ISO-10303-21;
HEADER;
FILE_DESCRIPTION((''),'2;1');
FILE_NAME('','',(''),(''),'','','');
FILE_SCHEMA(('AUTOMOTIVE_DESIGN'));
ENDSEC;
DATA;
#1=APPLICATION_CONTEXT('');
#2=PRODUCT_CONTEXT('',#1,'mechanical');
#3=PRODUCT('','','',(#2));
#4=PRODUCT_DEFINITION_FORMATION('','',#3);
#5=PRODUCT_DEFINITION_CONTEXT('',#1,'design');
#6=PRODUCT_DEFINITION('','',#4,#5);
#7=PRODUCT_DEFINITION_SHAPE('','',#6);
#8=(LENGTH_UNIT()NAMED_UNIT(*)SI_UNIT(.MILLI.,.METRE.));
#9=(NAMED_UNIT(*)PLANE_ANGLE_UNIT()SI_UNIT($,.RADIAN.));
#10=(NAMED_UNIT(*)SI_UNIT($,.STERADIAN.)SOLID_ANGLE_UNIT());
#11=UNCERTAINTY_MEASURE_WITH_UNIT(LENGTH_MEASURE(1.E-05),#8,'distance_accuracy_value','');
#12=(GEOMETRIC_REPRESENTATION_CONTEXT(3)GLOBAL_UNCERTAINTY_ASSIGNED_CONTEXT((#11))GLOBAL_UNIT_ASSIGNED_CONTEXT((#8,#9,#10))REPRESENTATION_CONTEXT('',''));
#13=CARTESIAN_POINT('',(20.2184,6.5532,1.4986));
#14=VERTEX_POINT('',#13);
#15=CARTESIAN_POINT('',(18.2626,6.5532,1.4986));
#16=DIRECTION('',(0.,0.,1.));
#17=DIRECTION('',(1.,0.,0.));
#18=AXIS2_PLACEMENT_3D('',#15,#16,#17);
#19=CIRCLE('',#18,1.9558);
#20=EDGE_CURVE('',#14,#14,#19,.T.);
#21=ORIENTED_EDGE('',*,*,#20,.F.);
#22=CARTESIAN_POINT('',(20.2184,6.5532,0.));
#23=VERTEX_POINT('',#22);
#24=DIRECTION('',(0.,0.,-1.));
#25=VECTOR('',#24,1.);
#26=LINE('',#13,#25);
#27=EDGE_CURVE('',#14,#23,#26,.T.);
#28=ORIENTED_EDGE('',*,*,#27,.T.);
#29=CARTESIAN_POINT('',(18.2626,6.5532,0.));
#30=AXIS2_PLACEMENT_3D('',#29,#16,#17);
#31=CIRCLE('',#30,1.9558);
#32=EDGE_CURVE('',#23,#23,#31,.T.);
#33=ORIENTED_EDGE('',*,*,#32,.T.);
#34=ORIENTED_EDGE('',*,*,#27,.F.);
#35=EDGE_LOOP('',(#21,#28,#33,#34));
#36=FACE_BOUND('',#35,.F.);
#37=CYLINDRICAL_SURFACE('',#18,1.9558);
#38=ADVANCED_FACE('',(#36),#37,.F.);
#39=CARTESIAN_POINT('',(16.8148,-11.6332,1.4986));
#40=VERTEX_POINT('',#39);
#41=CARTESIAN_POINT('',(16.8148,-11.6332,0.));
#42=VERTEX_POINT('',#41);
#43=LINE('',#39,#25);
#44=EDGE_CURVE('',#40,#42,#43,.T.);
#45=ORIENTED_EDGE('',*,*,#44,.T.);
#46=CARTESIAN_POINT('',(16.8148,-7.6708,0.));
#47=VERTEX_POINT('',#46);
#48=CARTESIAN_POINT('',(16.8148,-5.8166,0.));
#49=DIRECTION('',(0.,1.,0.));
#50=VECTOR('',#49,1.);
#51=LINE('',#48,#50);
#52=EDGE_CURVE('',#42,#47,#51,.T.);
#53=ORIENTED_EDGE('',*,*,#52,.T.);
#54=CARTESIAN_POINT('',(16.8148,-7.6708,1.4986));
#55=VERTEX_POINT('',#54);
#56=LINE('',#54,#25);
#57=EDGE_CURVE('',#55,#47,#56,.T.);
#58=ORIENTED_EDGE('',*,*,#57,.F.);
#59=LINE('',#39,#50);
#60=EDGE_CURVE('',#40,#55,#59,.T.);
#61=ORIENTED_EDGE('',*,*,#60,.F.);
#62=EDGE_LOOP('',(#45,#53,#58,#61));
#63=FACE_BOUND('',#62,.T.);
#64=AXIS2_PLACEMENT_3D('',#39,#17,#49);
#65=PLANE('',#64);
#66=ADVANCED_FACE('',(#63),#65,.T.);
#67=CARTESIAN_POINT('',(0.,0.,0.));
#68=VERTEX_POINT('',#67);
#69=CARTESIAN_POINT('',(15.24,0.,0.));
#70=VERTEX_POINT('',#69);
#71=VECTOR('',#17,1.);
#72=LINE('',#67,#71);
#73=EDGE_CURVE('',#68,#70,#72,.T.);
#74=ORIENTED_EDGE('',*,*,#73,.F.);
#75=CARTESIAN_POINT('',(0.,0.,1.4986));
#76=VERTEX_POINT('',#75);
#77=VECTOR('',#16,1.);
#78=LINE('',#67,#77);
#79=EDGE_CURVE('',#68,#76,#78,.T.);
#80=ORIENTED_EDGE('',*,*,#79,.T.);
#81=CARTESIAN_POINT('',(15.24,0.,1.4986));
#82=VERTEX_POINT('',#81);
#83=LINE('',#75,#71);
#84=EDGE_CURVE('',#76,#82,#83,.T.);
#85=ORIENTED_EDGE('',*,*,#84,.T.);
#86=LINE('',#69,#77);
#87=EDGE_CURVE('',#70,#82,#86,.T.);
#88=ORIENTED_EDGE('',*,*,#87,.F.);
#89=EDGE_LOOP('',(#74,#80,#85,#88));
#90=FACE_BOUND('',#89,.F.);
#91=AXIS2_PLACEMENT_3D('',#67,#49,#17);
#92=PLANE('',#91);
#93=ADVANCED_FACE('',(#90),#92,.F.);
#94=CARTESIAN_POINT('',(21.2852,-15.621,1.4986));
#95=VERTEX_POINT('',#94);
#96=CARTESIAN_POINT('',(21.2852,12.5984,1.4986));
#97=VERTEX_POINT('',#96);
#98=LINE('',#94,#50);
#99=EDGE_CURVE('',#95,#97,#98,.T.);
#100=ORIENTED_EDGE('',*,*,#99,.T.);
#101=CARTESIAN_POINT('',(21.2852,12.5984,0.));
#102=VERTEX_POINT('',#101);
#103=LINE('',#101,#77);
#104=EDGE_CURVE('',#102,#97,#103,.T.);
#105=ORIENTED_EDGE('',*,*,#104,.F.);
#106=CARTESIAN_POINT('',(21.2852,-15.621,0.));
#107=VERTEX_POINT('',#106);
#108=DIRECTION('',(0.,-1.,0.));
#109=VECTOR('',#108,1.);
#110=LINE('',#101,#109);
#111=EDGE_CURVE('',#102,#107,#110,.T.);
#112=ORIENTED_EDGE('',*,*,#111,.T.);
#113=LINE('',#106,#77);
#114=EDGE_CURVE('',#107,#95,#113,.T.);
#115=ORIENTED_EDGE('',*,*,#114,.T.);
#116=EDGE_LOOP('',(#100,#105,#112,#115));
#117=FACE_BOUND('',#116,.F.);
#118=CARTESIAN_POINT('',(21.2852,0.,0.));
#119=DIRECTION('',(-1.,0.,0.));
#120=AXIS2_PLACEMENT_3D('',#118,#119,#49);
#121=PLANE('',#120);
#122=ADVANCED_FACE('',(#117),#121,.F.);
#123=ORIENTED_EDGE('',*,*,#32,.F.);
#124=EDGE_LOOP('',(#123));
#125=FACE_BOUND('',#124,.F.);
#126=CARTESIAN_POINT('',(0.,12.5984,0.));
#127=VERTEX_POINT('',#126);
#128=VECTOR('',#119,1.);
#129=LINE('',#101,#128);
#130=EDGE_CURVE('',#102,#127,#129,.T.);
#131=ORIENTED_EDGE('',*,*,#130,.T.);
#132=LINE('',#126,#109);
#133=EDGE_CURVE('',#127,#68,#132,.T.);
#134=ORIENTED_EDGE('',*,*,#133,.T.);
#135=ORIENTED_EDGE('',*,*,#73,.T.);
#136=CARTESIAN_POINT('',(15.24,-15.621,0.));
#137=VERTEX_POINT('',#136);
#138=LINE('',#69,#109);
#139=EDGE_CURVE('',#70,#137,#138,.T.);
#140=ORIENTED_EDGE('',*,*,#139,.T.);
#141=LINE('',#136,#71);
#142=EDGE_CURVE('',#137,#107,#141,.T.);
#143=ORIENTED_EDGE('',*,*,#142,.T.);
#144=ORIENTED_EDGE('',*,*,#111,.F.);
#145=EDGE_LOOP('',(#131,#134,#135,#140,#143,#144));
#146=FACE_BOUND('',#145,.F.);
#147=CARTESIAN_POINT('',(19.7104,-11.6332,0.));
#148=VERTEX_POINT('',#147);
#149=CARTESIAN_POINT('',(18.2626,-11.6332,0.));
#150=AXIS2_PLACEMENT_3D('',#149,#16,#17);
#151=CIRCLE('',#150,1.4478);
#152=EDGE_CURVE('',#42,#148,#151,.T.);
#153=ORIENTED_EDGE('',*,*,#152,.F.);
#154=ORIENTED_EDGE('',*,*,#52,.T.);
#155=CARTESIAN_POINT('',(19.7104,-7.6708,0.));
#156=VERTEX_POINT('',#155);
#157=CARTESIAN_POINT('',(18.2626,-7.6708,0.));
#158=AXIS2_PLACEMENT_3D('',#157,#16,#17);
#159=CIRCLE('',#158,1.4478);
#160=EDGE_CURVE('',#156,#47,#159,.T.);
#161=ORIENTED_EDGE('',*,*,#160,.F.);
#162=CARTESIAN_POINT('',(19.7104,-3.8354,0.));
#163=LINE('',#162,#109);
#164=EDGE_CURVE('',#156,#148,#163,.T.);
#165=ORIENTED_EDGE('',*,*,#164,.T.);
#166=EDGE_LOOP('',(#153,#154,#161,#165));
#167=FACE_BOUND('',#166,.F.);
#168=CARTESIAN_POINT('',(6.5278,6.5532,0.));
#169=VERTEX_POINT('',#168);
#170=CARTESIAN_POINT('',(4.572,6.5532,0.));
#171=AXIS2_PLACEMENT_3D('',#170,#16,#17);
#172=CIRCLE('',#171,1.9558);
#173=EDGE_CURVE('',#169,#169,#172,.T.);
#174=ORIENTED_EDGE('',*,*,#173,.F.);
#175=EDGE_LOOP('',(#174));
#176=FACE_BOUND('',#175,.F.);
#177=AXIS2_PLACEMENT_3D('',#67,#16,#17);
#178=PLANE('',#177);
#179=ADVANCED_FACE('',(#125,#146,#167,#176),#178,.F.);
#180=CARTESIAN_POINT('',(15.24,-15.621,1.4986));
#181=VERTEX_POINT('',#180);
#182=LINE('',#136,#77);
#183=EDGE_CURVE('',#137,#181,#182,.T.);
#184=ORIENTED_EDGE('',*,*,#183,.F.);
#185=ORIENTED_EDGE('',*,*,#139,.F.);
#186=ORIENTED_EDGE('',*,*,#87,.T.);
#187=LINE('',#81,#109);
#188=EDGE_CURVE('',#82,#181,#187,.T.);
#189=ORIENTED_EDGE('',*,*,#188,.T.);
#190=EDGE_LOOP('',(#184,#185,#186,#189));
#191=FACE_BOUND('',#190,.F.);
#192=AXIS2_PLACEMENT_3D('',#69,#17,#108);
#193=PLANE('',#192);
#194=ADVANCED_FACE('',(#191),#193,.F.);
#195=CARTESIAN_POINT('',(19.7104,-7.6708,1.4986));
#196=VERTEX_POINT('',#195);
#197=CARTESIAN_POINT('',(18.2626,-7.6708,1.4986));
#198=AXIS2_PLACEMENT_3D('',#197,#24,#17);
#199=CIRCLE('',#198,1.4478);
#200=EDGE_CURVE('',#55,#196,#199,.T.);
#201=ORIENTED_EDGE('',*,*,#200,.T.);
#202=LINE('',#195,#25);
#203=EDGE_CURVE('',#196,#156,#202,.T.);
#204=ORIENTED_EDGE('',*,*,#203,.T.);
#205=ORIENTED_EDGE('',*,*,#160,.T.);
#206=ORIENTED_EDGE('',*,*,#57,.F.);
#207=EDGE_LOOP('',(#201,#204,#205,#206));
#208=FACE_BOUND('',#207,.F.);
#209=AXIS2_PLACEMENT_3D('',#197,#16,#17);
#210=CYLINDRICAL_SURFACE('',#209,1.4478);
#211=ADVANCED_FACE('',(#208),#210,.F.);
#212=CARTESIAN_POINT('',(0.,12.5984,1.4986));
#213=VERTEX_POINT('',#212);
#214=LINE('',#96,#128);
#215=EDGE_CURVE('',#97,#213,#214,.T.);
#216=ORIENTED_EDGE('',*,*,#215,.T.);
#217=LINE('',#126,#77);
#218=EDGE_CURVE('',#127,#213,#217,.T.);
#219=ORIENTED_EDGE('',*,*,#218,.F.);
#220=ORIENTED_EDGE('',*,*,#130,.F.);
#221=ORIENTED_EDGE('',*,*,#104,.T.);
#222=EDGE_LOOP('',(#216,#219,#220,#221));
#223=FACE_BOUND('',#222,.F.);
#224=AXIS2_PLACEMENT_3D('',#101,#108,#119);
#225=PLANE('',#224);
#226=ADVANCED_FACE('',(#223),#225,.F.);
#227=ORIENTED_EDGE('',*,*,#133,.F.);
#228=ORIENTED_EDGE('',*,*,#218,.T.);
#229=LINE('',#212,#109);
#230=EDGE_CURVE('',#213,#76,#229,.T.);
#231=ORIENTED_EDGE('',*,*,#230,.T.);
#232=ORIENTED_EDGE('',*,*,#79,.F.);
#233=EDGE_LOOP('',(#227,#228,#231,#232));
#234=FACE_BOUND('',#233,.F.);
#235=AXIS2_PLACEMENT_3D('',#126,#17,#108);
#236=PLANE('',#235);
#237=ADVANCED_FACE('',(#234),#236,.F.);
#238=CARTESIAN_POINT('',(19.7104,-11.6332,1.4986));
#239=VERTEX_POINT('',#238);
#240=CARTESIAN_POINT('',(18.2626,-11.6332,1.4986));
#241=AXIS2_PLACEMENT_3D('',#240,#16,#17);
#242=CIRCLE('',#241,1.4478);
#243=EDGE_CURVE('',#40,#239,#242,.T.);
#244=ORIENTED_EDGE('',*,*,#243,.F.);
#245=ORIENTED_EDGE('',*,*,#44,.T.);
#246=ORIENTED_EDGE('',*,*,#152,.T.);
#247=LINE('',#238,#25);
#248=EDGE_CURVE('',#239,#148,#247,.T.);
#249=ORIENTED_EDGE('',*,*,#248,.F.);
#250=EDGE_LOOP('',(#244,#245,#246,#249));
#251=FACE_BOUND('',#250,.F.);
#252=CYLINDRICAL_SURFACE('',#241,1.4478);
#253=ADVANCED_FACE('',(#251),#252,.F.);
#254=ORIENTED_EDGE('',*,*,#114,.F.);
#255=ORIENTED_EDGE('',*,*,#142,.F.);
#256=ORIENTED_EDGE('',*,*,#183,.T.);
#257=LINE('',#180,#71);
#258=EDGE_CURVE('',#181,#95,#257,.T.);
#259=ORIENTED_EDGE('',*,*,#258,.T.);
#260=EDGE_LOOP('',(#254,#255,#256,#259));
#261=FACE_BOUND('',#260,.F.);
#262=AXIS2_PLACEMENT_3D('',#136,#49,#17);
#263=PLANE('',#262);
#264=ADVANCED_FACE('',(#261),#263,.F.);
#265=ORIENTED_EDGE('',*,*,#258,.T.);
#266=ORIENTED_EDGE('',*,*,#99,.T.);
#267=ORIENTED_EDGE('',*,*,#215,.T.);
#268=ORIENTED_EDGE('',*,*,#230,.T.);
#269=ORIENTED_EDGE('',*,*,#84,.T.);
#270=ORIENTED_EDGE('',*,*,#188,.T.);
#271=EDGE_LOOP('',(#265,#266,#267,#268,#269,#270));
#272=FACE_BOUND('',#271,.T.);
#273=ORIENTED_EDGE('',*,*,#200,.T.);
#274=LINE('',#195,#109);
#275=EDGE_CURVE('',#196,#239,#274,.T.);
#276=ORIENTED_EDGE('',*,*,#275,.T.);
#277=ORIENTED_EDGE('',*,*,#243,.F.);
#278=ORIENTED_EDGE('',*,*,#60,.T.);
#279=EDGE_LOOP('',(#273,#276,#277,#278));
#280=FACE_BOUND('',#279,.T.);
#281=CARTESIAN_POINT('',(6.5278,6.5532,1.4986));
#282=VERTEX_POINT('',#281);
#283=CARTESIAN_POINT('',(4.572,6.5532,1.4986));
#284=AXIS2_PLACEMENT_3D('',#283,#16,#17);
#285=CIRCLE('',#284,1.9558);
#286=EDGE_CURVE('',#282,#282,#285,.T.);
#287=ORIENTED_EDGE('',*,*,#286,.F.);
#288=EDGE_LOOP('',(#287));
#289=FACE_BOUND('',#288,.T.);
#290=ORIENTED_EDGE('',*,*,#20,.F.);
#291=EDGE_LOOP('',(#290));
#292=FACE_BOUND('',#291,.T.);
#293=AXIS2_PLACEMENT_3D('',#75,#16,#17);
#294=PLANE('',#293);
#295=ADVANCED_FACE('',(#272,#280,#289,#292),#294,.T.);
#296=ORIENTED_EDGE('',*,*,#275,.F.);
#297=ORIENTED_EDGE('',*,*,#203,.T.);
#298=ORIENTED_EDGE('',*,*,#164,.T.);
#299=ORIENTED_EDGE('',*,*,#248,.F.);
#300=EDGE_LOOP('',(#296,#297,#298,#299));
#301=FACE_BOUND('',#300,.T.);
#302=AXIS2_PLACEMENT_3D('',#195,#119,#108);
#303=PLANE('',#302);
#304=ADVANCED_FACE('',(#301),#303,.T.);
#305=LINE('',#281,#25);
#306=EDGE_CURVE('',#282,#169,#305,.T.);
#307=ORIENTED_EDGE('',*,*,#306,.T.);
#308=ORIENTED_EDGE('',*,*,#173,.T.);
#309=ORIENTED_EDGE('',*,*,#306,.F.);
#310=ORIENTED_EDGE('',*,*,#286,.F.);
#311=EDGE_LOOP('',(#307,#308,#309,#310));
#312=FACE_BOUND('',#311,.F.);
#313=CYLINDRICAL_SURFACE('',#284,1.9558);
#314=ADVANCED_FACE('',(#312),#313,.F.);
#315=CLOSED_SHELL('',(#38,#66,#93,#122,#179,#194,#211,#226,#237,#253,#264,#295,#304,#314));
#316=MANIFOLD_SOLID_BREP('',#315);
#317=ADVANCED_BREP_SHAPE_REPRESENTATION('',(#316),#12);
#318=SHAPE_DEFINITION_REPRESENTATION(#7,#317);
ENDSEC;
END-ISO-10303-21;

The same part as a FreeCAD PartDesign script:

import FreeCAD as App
import Part
import Sketcher

V = App.Vector
Q = App.Units.Quantity

doc = App.newDocument("Part")
body = doc.addObject("PartDesign::Body", "Body")

# Sketch on XY plane
sketch1 = body.newObject("Sketcher::SketchObject", "Sketch")
sketch1.AttachmentSupport = (doc.getObject("XY_Plane"), [""])
sketch1.MapMode = "FlatFace"
sketch1.addGeometry(Part.LineSegment(V(0, 12.5984, 0), V(0, 0, 0)), False)
sketch1.addGeometry(Part.LineSegment(V(0, 0, 0), V(15.24, 0, 0)), False)
sketch1.addGeometry(Part.LineSegment(V(15.24, 0, 0), V(15.24, -15.621, 0)), False)
sketch1.addGeometry(Part.LineSegment(V(15.24, -15.621, 0), V(21.2852, -15.621, 0)), False)
sketch1.addGeometry(Part.LineSegment(V(21.2852, -15.621, 0), V(21.2852, 12.5984, 0)), False)
sketch1.addGeometry(Part.LineSegment(V(21.2852, 12.5984, 0), V(0, 12.5984, 0)), False)
sketch1.addConstraint(Sketcher.Constraint("Coincident", 0, 2, 1, 1))
sketch1.addConstraint(Sketcher.Constraint("Coincident", 1, 2, 2, 1))
sketch1.addConstraint(Sketcher.Constraint("Coincident", 2, 2, 3, 1))
sketch1.addConstraint(Sketcher.Constraint("Coincident", 3, 2, 4, 1))
sketch1.addConstraint(Sketcher.Constraint("Coincident", 4, 2, 5, 1))
sketch1.addConstraint(Sketcher.Constraint("Coincident", 5, 2, 0, 1))
sketch1.addConstraint(Sketcher.Constraint("Vertical", 0))
sketch1.addConstraint(Sketcher.Constraint("Horizontal", 1))
sketch1.addConstraint(Sketcher.Constraint("Vertical", 2))
sketch1.addConstraint(Sketcher.Constraint("Horizontal", 3))
sketch1.addConstraint(Sketcher.Constraint("Vertical", 4))
sketch1.addConstraint(Sketcher.Constraint("Horizontal", 5))
sketch1.addConstraint(Sketcher.Constraint("Coincident", 0, 2, -1, 1))
sketch1.addConstraint(Sketcher.Constraint("DistanceX", 3, 1, 3, 2, Q("0.238 in")))
sketch1.addConstraint(Sketcher.Constraint("DistanceX", 5, 2, 5, 1, Q("0.838 in")))
sketch1.addConstraint(Sketcher.Constraint("DistanceY", 0, 2, 0, 1, Q("0.496 in")))
sketch1.addConstraint(Sketcher.Constraint("DistanceY", 2, 2, 2, 1, Q("0.615 in")))
pad1 = body.newObject("PartDesign::Pad", "Pad")
pad1.Profile = sketch1
pad1.Length = Q("0.059 in")

# Sketch on XY plane
sketch2 = body.newObject("Sketcher::SketchObject", "Sketch001")
sketch2.AttachmentSupport = (doc.getObject("XY_Plane"), [""])
sketch2.MapMode = "FlatFace"
sketch2.AttachmentOffset = App.Placement(V(0, 0, 0.059 * 25.4), App.Rotation())
sketch2.addGeometry(Part.Circle(V(4.572, 6.5532, 0), V(0, 0, 1), 1.9558), False)
sketch2.addGeometry(Part.Circle(V(18.2626, 6.5532, 0), V(0, 0, 1), 1.9558), False)
sketch2.addConstraint(Sketcher.Constraint("Equal", 0, 1))
sketch2.addConstraint(Sketcher.Constraint("Horizontal", 0, 3, 1, 3))
sketch2.addConstraint(Sketcher.Constraint("Diameter", 0, Q("0.154 in")))
sketch2.addConstraint(Sketcher.Constraint("DistanceX", -1, 1, 0, 3, Q("0.18 in")))
sketch2.addConstraint(Sketcher.Constraint("DistanceX", 0, 3, 1, 3, Q("0.539 in")))
sketch2.addConstraint(Sketcher.Constraint("DistanceY", -1, 1, 0, 3, Q("0.258 in")))
pocket1 = body.newObject("PartDesign::Pocket", "Pocket")
pocket1.Profile = sketch2
pocket1.Length = Q("1 in")

# Sketch on XY plane
sketch3 = body.newObject("Sketcher::SketchObject", "Sketch002")
sketch3.AttachmentSupport = (doc.getObject("XY_Plane"), [""])
sketch3.MapMode = "FlatFace"
sketch3.AttachmentOffset = App.Placement(V(0, 0, 0.059 * 25.4), App.Rotation())
sketch3.addGeometry(Part.Circle(V(18.2626, -11.6332, 0), V(0, 0, 1), 1.4478), False)
sketch3.addGeometry(Part.Circle(V(18.2626, -7.6708, 0), V(0, 0, 1), 1.4478), False)
sketch3.addConstraint(Sketcher.Constraint("Equal", 0, 1))
sketch3.addConstraint(Sketcher.Constraint("Vertical", 0, 3, 1, 3))
sketch3.addConstraint(Sketcher.Constraint("Diameter", 0, Q("0.114 in")))
sketch3.addConstraint(Sketcher.Constraint("DistanceY", 0, 3, 1, 3, Q("0.156 in")))
sketch3.addConstraint(Sketcher.Constraint("DistanceX", -1, 1, 0, 3, Q("0.719 in")))
sketch3.addConstraint(Sketcher.Constraint("DistanceY", 0, 3, -1, 1, Q("0.458 in")))
pocket2 = body.newObject("PartDesign::Pocket", "Pocket001")
pocket2.Profile = sketch3
pocket2.Length = Q("1 in")

# Sketch on XY plane
sketch4 = body.newObject("Sketcher::SketchObject", "Sketch003")
sketch4.AttachmentSupport = (doc.getObject("XY_Plane"), [""])
sketch4.MapMode = "FlatFace"
sketch4.AttachmentOffset = App.Placement(V(0, 0, 0.059 * 25.4), App.Rotation())
sketch4.addGeometry(Part.LineSegment(V(19.7104, -11.6332, 0), V(19.7104, -7.6708, 0)), False)
sketch4.addGeometry(Part.LineSegment(V(19.7104, -7.6708, 0), V(16.8148, -7.6708, 0)), False)
sketch4.addGeometry(Part.LineSegment(V(16.8148, -7.6708, 0), V(16.8148, -11.6332, 0)), False)
sketch4.addGeometry(Part.LineSegment(V(16.8148, -11.6332, 0), V(19.7104, -11.6332, 0)), False)
sketch4.addConstraint(Sketcher.Constraint("Coincident", 0, 2, 1, 1))
sketch4.addConstraint(Sketcher.Constraint("Coincident", 1, 2, 2, 1))
sketch4.addConstraint(Sketcher.Constraint("Coincident", 2, 2, 3, 1))
sketch4.addConstraint(Sketcher.Constraint("Coincident", 3, 2, 0, 1))
sketch4.addConstraint(Sketcher.Constraint("Vertical", 0))
sketch4.addConstraint(Sketcher.Constraint("Horizontal", 1))
sketch4.addConstraint(Sketcher.Constraint("Vertical", 2))
sketch4.addConstraint(Sketcher.Constraint("Horizontal", 3))
sketch4.addConstraint(Sketcher.Constraint("DistanceX", 1, 2, 1, 1, Q("0.114 in")))
sketch4.addConstraint(Sketcher.Constraint("DistanceY", 0, 1, 0, 2, Q("0.156 in")))
sketch4.addConstraint(Sketcher.Constraint("DistanceX", -1, 1, 0, 2, Q("0.776 in")))
sketch4.addConstraint(Sketcher.Constraint("DistanceY", 0, 2, -1, 1, Q("0.302 in")))
pocket3 = body.newObject("PartDesign::Pocket", "Pocket002")
pocket3.Profile = sketch4
pocket3.Length = Q("1 in")

doc.recompute()
